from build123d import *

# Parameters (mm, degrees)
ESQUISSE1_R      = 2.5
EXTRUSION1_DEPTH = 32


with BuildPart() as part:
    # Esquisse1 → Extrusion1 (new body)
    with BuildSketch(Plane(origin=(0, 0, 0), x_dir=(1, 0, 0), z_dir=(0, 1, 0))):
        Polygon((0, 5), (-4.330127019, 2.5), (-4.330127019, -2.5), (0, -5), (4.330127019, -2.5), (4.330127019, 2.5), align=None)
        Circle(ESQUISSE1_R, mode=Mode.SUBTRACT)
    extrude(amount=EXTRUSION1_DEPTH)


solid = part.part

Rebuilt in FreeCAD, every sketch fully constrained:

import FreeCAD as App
import Part
import Sketcher

V = App.Vector
Q = App.Units.Quantity

doc = App.newDocument("Part")
params = doc.addObject("Spreadsheet::Sheet", "Params")
for row, (alias, value) in enumerate([
    ("sketch1_diameter", "5 mm"),
    ("sketch1_height", "5 mm"),
    ("sketch1_length", "5 mm"),
    ("pad1_length", "32 mm"),
], start=1):
    params.set(f"A{row}", alias)
    params.set(f"B{row}", "=" + value)
    params.setAlias(f"B{row}", alias)

body = doc.addObject("PartDesign::Body", "Body")

sketch1 = body.newObject("Sketcher::SketchObject", "Sketch")
sketch1.AttachmentSupport = (doc.getObject("XZ_Plane"), [""])
sketch1.MapMode = "FlatFace"
sketch1.addGeometry(Part.LineSegment(V(0, -5, 0), V(-4.3, -2.5, 0)), False)
sketch1.addGeometry(Part.LineSegment(V(-4.3, -2.5, 0), V(-4.3, 2.5, 0)), False)
sketch1.addGeometry(Part.LineSegment(V(-4.3, 2.5, 0), V(0, 5, 0)), False)
sketch1.addGeometry(Part.LineSegment(V(0, 5, 0), V(4.3, 2.5, 0)), False)
sketch1.addGeometry(Part.LineSegment(V(4.3, 2.5, 0), V(4.3, -2.5, 0)), False)
sketch1.addGeometry(Part.LineSegment(V(4.3, -2.5, 0), V(0, -5, 0)), False)
sketch1.addGeometry(Part.Circle(V(0, 0, 0), V(0, 0, 1), 2.5), False)
sketch1.addConstraint(Sketcher.Constraint("Coincident", 0, 2, 1, 1))
sketch1.addConstraint(Sketcher.Constraint("Coincident", 1, 2, 2, 1))
sketch1.addConstraint(Sketcher.Constraint("Coincident", 2, 2, 3, 1))
sketch1.addConstraint(Sketcher.Constraint("Coincident", 3, 2, 4, 1))
sketch1.addConstraint(Sketcher.Constraint("Coincident", 4, 2, 5, 1))
sketch1.addConstraint(Sketcher.Constraint("Coincident", 5, 2, 0, 1))
sketch1.addConstraint(Sketcher.Constraint("Vertical", 1))
sketch1.addConstraint(Sketcher.Constraint("Vertical", 4))
sketch1.addConstraint(Sketcher.Constraint("Coincident", 6, 3, -1, 1))
sketch1.addConstraint(Sketcher.Constraint("Symmetric", 0, 2, 3, 2, -1, 1))
sketch1.addConstraint(Sketcher.Constraint("Symmetric", 2, 2, 5, 2, -1, 1))
sketch1.addConstraint(Sketcher.Constraint("PointOnObject", 2, 2, -2))
sketch1.addConstraint(Sketcher.Constraint("Parallel", 2, 5))
sketch1.addConstraint(Sketcher.Constraint("Horizontal", 1, 2, 3, 2))
sketch1.addConstraint(Sketcher.Constraint("Diameter", 6, 5.0))
sketch1.addConstraint(Sketcher.Constraint("DistanceY", 1, 1, 1, 2, 5.0))
sketch1.addConstraint(Sketcher.Constraint("Angle", 0, Q("150 deg")))
sketch1.addConstraint(Sketcher.Constraint("Distance", 0, 5.0))
sketch1.setExpression("Constraints[14]", "Params.sketch1_diameter")
sketch1.setExpression("Constraints[15]", "Params.sketch1_height")
sketch1.setExpression("Constraints[17]", "Params.sketch1_length")
pad1 = body.newObject("PartDesign::Pad", "Pad")
pad1.Profile = sketch1
pad1.setExpression("Length", "Params.pad1_length")
pad1.Reversed = True

doc.recompute()
